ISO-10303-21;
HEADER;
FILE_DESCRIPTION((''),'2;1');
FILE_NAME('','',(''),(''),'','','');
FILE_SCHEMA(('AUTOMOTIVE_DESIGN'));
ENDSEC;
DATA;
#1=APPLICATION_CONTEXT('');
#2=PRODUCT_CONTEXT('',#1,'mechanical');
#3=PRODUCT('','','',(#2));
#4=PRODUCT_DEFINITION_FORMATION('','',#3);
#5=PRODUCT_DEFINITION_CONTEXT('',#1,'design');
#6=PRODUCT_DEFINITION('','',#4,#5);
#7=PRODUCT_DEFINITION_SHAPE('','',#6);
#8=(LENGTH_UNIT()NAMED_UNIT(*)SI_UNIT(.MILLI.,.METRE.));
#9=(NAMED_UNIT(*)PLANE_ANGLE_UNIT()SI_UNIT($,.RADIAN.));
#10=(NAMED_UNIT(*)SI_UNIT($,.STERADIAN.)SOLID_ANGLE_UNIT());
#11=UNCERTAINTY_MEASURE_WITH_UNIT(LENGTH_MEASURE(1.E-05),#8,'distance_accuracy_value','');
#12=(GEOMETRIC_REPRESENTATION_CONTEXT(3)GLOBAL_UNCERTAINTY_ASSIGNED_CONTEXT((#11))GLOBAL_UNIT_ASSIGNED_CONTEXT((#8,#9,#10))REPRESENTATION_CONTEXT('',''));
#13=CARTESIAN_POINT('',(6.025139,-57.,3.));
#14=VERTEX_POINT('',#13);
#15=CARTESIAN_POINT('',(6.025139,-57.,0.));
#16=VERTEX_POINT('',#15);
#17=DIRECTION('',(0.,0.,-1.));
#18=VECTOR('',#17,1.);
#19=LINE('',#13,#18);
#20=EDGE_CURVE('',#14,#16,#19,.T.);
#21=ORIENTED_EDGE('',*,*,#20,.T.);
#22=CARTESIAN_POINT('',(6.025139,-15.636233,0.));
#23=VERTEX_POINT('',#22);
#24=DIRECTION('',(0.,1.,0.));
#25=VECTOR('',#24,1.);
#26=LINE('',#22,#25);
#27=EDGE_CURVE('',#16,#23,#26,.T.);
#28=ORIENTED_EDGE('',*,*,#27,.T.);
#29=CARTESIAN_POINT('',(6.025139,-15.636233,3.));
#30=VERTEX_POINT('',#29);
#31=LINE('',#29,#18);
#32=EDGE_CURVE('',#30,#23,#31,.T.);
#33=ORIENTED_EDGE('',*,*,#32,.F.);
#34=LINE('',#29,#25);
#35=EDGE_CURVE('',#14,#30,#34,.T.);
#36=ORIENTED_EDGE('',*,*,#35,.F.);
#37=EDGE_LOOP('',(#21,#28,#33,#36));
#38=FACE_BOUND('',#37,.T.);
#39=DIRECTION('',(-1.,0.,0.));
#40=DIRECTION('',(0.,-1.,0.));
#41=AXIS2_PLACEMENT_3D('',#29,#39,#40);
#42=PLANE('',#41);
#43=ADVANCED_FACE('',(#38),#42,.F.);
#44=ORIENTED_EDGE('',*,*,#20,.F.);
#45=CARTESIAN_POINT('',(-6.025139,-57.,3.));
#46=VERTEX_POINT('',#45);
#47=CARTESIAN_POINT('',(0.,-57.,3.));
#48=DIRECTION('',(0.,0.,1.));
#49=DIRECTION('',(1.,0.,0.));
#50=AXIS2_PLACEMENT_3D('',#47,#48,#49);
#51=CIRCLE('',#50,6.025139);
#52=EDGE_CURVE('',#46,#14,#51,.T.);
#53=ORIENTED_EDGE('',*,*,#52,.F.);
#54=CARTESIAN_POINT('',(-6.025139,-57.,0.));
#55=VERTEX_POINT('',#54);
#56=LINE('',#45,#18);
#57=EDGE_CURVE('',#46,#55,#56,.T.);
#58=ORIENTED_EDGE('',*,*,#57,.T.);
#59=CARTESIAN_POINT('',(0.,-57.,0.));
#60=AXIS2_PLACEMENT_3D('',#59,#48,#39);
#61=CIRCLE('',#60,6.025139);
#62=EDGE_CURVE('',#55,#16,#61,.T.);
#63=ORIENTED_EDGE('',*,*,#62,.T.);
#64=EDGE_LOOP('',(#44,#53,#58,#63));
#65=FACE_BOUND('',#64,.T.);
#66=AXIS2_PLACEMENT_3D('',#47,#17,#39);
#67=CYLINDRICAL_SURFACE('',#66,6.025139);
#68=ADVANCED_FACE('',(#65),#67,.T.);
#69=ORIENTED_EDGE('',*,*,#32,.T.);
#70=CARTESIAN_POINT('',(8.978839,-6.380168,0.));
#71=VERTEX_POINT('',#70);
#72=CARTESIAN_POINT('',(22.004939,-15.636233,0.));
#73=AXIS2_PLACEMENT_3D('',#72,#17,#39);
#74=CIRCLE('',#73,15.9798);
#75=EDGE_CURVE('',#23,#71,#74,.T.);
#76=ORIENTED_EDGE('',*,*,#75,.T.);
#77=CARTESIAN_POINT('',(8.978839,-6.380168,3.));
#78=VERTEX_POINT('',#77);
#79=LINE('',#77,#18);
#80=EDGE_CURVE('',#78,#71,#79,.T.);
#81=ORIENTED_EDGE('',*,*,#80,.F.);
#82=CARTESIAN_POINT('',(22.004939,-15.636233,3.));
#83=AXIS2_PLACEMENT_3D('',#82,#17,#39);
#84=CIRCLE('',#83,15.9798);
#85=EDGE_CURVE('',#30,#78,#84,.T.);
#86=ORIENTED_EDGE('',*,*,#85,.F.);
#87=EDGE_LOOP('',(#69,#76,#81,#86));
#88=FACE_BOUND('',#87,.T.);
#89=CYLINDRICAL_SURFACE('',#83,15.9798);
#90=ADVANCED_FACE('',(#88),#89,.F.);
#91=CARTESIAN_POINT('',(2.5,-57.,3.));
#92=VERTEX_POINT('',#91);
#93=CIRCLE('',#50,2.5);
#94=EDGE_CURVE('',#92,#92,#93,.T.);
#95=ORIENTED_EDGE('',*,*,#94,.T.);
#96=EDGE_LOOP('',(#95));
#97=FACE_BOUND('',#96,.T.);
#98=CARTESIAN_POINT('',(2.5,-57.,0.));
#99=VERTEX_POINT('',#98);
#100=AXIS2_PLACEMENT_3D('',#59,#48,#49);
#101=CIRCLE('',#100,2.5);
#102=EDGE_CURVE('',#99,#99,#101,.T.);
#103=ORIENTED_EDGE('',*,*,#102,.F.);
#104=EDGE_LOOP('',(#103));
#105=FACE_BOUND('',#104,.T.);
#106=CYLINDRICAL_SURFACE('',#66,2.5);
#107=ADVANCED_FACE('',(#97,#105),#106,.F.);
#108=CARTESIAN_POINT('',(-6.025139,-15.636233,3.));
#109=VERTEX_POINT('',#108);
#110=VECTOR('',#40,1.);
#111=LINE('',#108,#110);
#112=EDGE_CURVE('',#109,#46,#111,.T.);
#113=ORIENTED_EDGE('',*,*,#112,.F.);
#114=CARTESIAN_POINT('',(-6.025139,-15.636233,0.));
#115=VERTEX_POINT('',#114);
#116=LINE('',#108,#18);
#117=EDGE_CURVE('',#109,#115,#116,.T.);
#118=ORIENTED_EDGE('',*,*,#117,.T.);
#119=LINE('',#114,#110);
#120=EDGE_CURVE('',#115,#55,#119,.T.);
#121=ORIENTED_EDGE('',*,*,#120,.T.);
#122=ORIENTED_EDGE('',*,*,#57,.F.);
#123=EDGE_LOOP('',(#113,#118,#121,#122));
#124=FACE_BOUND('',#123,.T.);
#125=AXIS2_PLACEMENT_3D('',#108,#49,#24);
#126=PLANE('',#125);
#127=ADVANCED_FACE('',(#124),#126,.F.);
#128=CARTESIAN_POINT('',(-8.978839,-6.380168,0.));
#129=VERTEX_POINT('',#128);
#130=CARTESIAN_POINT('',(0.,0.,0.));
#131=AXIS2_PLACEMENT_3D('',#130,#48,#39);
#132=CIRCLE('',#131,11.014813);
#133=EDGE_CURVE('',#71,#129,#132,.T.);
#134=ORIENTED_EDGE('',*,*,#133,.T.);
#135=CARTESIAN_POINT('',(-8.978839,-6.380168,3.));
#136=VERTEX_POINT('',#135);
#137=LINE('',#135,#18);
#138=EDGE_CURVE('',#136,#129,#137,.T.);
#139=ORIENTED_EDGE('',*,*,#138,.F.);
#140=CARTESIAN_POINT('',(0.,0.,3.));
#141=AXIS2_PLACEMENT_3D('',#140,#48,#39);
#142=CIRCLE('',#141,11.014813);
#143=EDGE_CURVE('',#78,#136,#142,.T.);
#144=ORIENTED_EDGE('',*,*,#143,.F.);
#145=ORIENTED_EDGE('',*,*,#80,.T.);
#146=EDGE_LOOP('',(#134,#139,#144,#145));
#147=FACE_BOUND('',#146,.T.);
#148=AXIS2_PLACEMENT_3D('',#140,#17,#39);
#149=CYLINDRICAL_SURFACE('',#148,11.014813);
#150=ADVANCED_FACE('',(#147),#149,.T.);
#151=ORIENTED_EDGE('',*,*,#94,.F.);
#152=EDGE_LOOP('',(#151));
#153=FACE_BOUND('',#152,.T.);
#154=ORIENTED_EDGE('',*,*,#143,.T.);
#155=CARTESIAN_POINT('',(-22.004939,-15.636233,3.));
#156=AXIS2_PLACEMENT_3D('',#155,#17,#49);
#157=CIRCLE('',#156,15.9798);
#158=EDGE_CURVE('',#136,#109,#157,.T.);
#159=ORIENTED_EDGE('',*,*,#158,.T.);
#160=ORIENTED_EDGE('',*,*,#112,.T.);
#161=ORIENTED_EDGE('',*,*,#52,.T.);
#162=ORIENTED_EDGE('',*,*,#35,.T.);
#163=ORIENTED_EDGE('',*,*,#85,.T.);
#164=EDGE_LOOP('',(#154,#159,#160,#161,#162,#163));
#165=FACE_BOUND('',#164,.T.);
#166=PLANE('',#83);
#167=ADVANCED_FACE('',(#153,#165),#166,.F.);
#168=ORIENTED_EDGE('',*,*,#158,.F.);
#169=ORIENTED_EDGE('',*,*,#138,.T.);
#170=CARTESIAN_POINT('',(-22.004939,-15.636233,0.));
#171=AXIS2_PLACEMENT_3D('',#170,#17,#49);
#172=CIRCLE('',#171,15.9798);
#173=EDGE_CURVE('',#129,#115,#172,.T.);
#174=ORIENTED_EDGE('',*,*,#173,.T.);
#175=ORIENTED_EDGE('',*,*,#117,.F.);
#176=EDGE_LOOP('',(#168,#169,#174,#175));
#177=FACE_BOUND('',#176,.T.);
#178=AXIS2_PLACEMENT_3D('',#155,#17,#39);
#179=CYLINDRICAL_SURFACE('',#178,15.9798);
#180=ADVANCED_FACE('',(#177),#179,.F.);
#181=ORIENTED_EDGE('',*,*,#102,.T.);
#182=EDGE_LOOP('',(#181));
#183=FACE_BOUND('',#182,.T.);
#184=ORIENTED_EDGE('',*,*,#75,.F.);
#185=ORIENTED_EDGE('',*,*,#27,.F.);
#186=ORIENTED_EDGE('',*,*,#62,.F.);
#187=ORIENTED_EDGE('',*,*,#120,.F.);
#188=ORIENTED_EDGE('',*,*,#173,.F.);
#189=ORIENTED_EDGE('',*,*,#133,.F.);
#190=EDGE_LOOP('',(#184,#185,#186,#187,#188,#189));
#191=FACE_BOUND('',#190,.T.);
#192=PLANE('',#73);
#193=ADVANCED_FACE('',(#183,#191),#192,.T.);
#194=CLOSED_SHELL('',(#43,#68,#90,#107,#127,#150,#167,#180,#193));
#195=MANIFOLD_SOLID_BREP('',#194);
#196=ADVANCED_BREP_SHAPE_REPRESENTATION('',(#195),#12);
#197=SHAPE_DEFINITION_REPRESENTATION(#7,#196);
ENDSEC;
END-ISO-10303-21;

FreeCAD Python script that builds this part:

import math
import FreeCAD as App
import Part
import Sketcher

doc = App.newDocument("Part")
params = doc.addObject("Spreadsheet::Sheet", "Params")
for row, (alias, value) in enumerate([
    ("sketch1_diameter", "5 mm"),
    ("pad1_length", "3 mm"),
], start=1):
    params.set(f"A{row}", alias)
    params.set(f"B{row}", "=" + value)
    params.setAlias(f"B{row}", alias)

body = doc.addObject("PartDesign::Body", "Body")

sketch1 = body.newObject("Sketcher::SketchObject", "Sketch")
sketch1.AttachmentSupport = (doc.getObject("XY_Plane"), [""])
sketch1.MapMode = "FlatFace"
sketch1.addGeometry([
    Part.LineSegment(App.Vector(6, -57, 0), App.Vector(6, -15.6, 0)),
    Part.ArcOfCircle(Part.Circle(App.Vector(22, -15.6, 0), App.Vector(0, 0, 1), 16), math.radians(145), math.radians(180)),
    Part.ArcOfCircle(Part.Circle(App.Vector(0, 0, 0), App.Vector(0, 0, 1), 11), math.radians(-35), math.radians(215)),
    Part.ArcOfCircle(Part.Circle(App.Vector(-22, -15.6, 0), App.Vector(0, 0, 1), 16), math.radians(0), math.radians(35)),
    Part.LineSegment(App.Vector(-6, -15.6, 0), App.Vector(-6, -57, 0)),
    Part.ArcOfCircle(Part.Circle(App.Vector(0, -57, 0), App.Vector(0, 0, 1), 6), math.radians(180), math.radians(270)),
    Part.ArcOfCircle(Part.Circle(App.Vector(0, -57, 0), App.Vector(0, 0, 1), 6), math.radians(-90), math.radians(0)),
    Part.Circle(App.Vector(0, -57, 0), App.Vector(0, 0, 1), 2.5),
], False)
sketch1.addConstraint([
    Sketcher.Constraint("Tangent", 0, 2, 1, 2),
    Sketcher.Constraint("Tangent", 1, 1, 2, 1),
    Sketcher.Constraint("Tangent", 2, 2, 3, 2),
    Sketcher.Constraint("Tangent", 3, 1, 4, 1),
    Sketcher.Constraint("Tangent", 4, 2, 5, 1),
    Sketcher.Constraint("Tangent", 5, 2, 6, 1),
    Sketcher.Constraint("Tangent", 6, 2, 0, 1),
    Sketcher.Constraint("Vertical", 0),
    Sketcher.Constraint("Vertical", 4),
    Sketcher.Constraint("Coincident", 2, 3, -1, 1),
    Sketcher.Constraint("Coincident", 7, 3, 5, 3),
    Sketcher.Constraint("Equal", 1, 3),
    Sketcher.Constraint("Equal", 5, 6),
    Sketcher.Constraint("PointOnObject", 5, 3, -2),
    Sketcher.Constraint("PointOnObject", 5, 2, -2),
    Sketcher.Constraint("Diameter", 7, 5.0),
    Sketcher.Constraint("DistanceY", 5, 3, -1, 1, 57.0),
    Sketcher.Constraint("Radius", 1, 15.9798),
    Sketcher.Constraint("Radius", 5, 6.025139),
    Sketcher.Constraint("Radius", 2, 11.014813),
])
sketch1.setExpression("Constraints[15]", "Params.sketch1_diameter")
pad1 = body.newObject("PartDesign::Pad", "Pad")
pad1.Profile = sketch1
pad1.setExpression("Length", "Params.pad1_length")

doc.recompute()
